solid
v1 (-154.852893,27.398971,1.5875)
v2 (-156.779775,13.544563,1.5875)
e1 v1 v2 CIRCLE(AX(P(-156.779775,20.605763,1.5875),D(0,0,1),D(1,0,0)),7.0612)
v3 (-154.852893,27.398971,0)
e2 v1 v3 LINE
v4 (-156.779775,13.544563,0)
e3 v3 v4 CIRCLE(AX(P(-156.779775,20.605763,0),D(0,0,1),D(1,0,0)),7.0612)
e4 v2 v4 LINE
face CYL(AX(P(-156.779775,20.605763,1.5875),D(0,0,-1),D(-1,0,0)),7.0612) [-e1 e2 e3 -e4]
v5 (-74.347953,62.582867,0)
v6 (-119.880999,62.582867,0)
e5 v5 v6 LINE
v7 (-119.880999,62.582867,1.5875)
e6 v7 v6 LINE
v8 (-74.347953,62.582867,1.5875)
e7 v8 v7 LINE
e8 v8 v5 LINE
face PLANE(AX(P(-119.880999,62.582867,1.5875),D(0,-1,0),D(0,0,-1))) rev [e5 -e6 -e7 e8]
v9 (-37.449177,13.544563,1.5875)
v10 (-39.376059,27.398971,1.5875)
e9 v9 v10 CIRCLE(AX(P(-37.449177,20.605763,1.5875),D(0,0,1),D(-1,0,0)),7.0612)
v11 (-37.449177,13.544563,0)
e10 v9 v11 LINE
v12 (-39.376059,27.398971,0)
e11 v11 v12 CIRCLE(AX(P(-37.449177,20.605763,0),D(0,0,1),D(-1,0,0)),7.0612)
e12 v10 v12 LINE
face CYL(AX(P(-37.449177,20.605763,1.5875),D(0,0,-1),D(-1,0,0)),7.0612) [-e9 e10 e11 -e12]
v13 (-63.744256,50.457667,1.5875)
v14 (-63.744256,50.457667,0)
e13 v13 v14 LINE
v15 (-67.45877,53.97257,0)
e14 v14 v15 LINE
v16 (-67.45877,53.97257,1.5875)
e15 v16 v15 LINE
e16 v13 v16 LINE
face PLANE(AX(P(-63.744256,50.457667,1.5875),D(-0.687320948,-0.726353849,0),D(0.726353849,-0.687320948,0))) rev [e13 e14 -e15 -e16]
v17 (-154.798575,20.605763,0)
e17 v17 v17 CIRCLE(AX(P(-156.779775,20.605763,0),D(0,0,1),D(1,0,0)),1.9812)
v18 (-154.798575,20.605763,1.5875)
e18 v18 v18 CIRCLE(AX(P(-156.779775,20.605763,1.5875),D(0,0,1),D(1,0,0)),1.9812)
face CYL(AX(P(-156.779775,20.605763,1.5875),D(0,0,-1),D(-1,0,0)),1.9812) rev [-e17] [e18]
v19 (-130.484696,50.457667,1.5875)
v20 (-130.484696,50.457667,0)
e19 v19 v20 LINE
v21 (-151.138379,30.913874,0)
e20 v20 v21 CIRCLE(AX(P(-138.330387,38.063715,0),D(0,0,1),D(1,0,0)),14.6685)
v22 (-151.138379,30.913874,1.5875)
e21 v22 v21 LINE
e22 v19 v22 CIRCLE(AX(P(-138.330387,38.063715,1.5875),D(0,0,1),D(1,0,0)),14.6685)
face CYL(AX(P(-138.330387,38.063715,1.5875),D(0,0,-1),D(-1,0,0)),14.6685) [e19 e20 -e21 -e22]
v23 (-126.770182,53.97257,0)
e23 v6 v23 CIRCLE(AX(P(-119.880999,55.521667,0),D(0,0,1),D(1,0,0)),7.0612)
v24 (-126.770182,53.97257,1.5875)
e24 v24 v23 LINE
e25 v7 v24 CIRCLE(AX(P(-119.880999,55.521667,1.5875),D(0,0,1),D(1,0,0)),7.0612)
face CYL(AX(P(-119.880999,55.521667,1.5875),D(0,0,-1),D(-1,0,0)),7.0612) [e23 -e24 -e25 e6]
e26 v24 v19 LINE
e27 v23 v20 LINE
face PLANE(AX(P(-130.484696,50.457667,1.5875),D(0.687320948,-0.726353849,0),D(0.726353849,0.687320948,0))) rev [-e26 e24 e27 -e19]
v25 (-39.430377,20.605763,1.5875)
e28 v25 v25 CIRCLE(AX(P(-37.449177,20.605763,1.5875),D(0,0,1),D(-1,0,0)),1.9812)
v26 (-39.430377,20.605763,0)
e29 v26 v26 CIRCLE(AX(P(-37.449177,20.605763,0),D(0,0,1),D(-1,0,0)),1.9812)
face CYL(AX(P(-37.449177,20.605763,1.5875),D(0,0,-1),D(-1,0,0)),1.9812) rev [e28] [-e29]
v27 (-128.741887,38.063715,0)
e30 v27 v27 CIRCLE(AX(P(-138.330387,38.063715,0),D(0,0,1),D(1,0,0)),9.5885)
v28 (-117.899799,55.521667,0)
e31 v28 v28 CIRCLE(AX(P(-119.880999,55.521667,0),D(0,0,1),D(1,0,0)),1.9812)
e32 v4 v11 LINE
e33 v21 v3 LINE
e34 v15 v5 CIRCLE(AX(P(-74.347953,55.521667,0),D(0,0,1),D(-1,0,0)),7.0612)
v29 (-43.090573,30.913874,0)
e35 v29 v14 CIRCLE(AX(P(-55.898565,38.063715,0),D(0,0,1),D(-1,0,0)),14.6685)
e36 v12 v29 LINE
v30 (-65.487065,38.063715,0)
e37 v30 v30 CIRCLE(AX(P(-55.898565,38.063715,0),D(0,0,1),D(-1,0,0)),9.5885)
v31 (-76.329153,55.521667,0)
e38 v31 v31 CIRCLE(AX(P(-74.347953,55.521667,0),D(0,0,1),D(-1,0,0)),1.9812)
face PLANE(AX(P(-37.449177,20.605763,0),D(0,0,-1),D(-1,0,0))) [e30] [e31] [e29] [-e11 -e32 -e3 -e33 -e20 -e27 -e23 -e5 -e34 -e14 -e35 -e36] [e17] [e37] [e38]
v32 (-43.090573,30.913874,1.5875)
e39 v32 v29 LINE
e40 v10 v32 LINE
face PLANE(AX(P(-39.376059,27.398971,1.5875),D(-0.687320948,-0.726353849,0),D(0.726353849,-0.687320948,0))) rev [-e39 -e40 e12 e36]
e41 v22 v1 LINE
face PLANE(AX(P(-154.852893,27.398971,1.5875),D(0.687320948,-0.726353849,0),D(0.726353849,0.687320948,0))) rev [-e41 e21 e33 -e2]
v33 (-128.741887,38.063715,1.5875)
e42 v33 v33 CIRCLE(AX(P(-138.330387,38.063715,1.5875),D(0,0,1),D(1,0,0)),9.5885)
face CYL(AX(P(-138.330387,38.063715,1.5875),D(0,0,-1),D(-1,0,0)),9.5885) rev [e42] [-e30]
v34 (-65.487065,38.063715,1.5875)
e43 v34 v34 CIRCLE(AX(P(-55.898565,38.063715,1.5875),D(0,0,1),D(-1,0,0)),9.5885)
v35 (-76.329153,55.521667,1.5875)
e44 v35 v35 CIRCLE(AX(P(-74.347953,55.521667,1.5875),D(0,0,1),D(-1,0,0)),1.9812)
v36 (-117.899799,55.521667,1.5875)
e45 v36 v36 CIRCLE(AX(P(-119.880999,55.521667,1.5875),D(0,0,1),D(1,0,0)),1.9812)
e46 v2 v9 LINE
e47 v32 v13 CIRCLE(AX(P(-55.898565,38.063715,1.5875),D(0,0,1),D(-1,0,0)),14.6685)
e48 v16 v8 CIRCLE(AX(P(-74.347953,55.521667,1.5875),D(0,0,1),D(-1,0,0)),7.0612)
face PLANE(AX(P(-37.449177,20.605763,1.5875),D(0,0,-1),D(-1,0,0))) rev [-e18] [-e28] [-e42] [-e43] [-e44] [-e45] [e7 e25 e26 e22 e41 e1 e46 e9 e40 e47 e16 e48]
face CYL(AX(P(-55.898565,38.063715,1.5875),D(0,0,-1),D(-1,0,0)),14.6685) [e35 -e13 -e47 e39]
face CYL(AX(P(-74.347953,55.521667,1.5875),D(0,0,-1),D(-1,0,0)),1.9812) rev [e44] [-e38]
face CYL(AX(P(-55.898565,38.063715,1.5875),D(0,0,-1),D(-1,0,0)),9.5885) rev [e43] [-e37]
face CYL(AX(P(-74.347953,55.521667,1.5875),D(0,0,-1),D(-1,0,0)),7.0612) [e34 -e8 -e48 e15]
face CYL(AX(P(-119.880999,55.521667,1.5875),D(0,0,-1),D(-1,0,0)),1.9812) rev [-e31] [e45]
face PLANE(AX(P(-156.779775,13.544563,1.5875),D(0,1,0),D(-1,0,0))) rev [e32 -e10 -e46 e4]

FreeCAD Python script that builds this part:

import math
import FreeCAD as App
import Part
import Sketcher

V = App.Vector
Q = App.Units.Quantity

doc = App.newDocument("Part")
body = doc.addObject("PartDesign::Body", "Body")

sketch1 = body.newObject("Sketcher::SketchObject", "Sketch")
sketch1.AttachmentSupport = (doc.getObject("XY_Plane"), [""])
sketch1.MapMode = "FlatFace"
sketch1.addGeometry([
    Part.LineSegment(V(-156.8, 13.5, 0), V(-37.4, 13.5, 0)),
    Part.ArcOfCircle(Part.Circle(V(-37.4, 20.6, 0), V(0, 0, 1), 7.1), math.radians(-90), math.radians(106)),
    Part.LineSegment(V(-39.4, 27.4, 0), V(-43.1, 30.9, 0)),
    Part.ArcOfCircle(Part.Circle(V(-55.9, 38.1, 0), V(0, 0, 1), 14.7), math.radians(-29), math.radians(122)),
    Part.LineSegment(V(-63.7, 50.5, 0), V(-67.5, 54, 0)),
    Part.ArcOfCircle(Part.Circle(V(-74.3, 55.5, 0), V(0, 0, 1), 7.1), math.radians(-13), math.radians(90)),
    Part.LineSegment(V(-74.3, 62.6, 0), V(-119.9, 62.6, 0)),
    Part.ArcOfCircle(Part.Circle(V(-119.9, 55.5, 0), V(0, 0, 1), 7.1), math.radians(90), math.radians(193)),
    Part.LineSegment(V(-126.8, 54, 0), V(-130.5, 50.5, 0)),
    Part.ArcOfCircle(Part.Circle(V(-138.3, 38.1, 0), V(0, 0, 1), 14.7), math.radians(58), math.radians(209)),
    Part.LineSegment(V(-151.1, 30.9, 0), V(-154.9, 27.4, 0)),
    Part.ArcOfCircle(Part.Circle(V(-156.8, 20.6, 0), V(0, 0, 1), 7.1), math.radians(74), math.radians(270)),
    Part.Circle(V(-156.8, 20.6, 0), V(0, 0, 1), 2),
    Part.Circle(V(-138.3, 38.1, 0), V(0, 0, 1), 9.6),
    Part.Circle(V(-37.4, 20.6, 0), V(0, 0, 1), 2),
    Part.Circle(V(-55.9, 38.1, 0), V(0, 0, 1), 9.6),
    Part.Circle(V(-119.9, 55.5, 0), V(0, 0, 1), 2),
    Part.Circle(V(-74.3, 55.5, 0), V(0, 0, 1), 2),
], False)
sketch1.addConstraint([
    Sketcher.Constraint("Tangent", 0, 2, 1, 1),
    Sketcher.Constraint("Coincident", 1, 2, 2, 1),
    Sketcher.Constraint("Coincident", 2, 2, 3, 1),
    Sketcher.Constraint("Coincident", 3, 2, 4, 1),
    Sketcher.Constraint("Coincident", 4, 2, 5, 1),
    Sketcher.Constraint("Tangent", 5, 2, 6, 1),
    Sketcher.Constraint("Tangent", 6, 2, 7, 1),
    Sketcher.Constraint("Coincident", 7, 2, 8, 1),
    Sketcher.Constraint("Coincident", 8, 2, 9, 1),
    Sketcher.Constraint("Coincident", 9, 2, 10, 1),
    Sketcher.Constraint("Coincident", 10, 2, 11, 1),
    Sketcher.Constraint("Tangent", 11, 2, 0, 1),
    Sketcher.Constraint("Horizontal", 0),
    Sketcher.Constraint("Horizontal", 6),
    Sketcher.Constraint("Coincident", 12, 3, 11, 3),
    Sketcher.Constraint("Coincident", 13, 3, 9, 3),
    Sketcher.Constraint("Coincident", 14, 3, 1, 3),
    Sketcher.Constraint("Coincident", 15, 3, 3, 3),
    Sketcher.Constraint("Coincident", 16, 3, 7, 3),
    Sketcher.Constraint("Coincident", 17, 3, 5, 3),
    Sketcher.Constraint("Equal", 1, 5),
    Sketcher.Constraint("Equal", 5, 7),
    Sketcher.Constraint("Equal", 3, 9),
    Sketcher.Constraint("Equal", 7, 11),
    Sketcher.Constraint("Equal", 12, 14),
    Sketcher.Constraint("Equal", 13, 15),
    Sketcher.Constraint("Equal", 14, 16),
    Sketcher.Constraint("Equal", 16, 17),
    Sketcher.Constraint("Parallel", 2, 4),
    Sketcher.Constraint("Parallel", 8, 10),
    Sketcher.Constraint("Horizontal", 3, 3, 9, 3),
    Sketcher.Constraint("Horizontal", 4, 2, 7, 2),
    Sketcher.Constraint("Horizontal", 3, 2, 8, 2),
    Sketcher.Constraint("Horizontal", 2, 2, 9, 2),
    Sketcher.Constraint("Horizontal", 1, 2, 10, 2),
    Sketcher.Constraint("Equal", 2, 4),
    Sketcher.Constraint("Equal", 4, 8),
    Sketcher.Constraint("Diameter", 12, Q("0.156 in")),
    Sketcher.Constraint("Diameter", 13, Q("0.755 in")),
    Sketcher.Constraint("Radius", 1, Q("0.278 in")),
    Sketcher.Constraint("Radius", 3, Q("0.5775 in")),
    Sketcher.Constraint("DistanceX", 7, 3, -1, 1, 119.880999),
    Sketcher.Constraint("DistanceY", 3, 2, 5, 3, 5.064001),
    Sketcher.Constraint("Distance", 2, 5.113918),
    Sketcher.Constraint("DistanceX", 0, 1, 0, 2, 119.330597),
    Sketcher.Constraint("DistanceX", 6, 2, 6, 1, 45.533046),
    Sketcher.Constraint("DistanceX", 1, 2, -1, 1, 39.376059),
    Sketcher.Constraint("DistanceY", -1, 1, 1, 2, 27.398971),
    Sketcher.Constraint("DistanceX", 4, 2, -1, 1, 67.45877),
    Sketcher.Constraint("DistanceY", -1, 1, 4, 2, 53.97257),
])
pad1 = body.newObject("PartDesign::Pad", "Pad")
pad1.Profile = sketch1
pad1.Length = Q("0.0625 in")

doc.recompute()
